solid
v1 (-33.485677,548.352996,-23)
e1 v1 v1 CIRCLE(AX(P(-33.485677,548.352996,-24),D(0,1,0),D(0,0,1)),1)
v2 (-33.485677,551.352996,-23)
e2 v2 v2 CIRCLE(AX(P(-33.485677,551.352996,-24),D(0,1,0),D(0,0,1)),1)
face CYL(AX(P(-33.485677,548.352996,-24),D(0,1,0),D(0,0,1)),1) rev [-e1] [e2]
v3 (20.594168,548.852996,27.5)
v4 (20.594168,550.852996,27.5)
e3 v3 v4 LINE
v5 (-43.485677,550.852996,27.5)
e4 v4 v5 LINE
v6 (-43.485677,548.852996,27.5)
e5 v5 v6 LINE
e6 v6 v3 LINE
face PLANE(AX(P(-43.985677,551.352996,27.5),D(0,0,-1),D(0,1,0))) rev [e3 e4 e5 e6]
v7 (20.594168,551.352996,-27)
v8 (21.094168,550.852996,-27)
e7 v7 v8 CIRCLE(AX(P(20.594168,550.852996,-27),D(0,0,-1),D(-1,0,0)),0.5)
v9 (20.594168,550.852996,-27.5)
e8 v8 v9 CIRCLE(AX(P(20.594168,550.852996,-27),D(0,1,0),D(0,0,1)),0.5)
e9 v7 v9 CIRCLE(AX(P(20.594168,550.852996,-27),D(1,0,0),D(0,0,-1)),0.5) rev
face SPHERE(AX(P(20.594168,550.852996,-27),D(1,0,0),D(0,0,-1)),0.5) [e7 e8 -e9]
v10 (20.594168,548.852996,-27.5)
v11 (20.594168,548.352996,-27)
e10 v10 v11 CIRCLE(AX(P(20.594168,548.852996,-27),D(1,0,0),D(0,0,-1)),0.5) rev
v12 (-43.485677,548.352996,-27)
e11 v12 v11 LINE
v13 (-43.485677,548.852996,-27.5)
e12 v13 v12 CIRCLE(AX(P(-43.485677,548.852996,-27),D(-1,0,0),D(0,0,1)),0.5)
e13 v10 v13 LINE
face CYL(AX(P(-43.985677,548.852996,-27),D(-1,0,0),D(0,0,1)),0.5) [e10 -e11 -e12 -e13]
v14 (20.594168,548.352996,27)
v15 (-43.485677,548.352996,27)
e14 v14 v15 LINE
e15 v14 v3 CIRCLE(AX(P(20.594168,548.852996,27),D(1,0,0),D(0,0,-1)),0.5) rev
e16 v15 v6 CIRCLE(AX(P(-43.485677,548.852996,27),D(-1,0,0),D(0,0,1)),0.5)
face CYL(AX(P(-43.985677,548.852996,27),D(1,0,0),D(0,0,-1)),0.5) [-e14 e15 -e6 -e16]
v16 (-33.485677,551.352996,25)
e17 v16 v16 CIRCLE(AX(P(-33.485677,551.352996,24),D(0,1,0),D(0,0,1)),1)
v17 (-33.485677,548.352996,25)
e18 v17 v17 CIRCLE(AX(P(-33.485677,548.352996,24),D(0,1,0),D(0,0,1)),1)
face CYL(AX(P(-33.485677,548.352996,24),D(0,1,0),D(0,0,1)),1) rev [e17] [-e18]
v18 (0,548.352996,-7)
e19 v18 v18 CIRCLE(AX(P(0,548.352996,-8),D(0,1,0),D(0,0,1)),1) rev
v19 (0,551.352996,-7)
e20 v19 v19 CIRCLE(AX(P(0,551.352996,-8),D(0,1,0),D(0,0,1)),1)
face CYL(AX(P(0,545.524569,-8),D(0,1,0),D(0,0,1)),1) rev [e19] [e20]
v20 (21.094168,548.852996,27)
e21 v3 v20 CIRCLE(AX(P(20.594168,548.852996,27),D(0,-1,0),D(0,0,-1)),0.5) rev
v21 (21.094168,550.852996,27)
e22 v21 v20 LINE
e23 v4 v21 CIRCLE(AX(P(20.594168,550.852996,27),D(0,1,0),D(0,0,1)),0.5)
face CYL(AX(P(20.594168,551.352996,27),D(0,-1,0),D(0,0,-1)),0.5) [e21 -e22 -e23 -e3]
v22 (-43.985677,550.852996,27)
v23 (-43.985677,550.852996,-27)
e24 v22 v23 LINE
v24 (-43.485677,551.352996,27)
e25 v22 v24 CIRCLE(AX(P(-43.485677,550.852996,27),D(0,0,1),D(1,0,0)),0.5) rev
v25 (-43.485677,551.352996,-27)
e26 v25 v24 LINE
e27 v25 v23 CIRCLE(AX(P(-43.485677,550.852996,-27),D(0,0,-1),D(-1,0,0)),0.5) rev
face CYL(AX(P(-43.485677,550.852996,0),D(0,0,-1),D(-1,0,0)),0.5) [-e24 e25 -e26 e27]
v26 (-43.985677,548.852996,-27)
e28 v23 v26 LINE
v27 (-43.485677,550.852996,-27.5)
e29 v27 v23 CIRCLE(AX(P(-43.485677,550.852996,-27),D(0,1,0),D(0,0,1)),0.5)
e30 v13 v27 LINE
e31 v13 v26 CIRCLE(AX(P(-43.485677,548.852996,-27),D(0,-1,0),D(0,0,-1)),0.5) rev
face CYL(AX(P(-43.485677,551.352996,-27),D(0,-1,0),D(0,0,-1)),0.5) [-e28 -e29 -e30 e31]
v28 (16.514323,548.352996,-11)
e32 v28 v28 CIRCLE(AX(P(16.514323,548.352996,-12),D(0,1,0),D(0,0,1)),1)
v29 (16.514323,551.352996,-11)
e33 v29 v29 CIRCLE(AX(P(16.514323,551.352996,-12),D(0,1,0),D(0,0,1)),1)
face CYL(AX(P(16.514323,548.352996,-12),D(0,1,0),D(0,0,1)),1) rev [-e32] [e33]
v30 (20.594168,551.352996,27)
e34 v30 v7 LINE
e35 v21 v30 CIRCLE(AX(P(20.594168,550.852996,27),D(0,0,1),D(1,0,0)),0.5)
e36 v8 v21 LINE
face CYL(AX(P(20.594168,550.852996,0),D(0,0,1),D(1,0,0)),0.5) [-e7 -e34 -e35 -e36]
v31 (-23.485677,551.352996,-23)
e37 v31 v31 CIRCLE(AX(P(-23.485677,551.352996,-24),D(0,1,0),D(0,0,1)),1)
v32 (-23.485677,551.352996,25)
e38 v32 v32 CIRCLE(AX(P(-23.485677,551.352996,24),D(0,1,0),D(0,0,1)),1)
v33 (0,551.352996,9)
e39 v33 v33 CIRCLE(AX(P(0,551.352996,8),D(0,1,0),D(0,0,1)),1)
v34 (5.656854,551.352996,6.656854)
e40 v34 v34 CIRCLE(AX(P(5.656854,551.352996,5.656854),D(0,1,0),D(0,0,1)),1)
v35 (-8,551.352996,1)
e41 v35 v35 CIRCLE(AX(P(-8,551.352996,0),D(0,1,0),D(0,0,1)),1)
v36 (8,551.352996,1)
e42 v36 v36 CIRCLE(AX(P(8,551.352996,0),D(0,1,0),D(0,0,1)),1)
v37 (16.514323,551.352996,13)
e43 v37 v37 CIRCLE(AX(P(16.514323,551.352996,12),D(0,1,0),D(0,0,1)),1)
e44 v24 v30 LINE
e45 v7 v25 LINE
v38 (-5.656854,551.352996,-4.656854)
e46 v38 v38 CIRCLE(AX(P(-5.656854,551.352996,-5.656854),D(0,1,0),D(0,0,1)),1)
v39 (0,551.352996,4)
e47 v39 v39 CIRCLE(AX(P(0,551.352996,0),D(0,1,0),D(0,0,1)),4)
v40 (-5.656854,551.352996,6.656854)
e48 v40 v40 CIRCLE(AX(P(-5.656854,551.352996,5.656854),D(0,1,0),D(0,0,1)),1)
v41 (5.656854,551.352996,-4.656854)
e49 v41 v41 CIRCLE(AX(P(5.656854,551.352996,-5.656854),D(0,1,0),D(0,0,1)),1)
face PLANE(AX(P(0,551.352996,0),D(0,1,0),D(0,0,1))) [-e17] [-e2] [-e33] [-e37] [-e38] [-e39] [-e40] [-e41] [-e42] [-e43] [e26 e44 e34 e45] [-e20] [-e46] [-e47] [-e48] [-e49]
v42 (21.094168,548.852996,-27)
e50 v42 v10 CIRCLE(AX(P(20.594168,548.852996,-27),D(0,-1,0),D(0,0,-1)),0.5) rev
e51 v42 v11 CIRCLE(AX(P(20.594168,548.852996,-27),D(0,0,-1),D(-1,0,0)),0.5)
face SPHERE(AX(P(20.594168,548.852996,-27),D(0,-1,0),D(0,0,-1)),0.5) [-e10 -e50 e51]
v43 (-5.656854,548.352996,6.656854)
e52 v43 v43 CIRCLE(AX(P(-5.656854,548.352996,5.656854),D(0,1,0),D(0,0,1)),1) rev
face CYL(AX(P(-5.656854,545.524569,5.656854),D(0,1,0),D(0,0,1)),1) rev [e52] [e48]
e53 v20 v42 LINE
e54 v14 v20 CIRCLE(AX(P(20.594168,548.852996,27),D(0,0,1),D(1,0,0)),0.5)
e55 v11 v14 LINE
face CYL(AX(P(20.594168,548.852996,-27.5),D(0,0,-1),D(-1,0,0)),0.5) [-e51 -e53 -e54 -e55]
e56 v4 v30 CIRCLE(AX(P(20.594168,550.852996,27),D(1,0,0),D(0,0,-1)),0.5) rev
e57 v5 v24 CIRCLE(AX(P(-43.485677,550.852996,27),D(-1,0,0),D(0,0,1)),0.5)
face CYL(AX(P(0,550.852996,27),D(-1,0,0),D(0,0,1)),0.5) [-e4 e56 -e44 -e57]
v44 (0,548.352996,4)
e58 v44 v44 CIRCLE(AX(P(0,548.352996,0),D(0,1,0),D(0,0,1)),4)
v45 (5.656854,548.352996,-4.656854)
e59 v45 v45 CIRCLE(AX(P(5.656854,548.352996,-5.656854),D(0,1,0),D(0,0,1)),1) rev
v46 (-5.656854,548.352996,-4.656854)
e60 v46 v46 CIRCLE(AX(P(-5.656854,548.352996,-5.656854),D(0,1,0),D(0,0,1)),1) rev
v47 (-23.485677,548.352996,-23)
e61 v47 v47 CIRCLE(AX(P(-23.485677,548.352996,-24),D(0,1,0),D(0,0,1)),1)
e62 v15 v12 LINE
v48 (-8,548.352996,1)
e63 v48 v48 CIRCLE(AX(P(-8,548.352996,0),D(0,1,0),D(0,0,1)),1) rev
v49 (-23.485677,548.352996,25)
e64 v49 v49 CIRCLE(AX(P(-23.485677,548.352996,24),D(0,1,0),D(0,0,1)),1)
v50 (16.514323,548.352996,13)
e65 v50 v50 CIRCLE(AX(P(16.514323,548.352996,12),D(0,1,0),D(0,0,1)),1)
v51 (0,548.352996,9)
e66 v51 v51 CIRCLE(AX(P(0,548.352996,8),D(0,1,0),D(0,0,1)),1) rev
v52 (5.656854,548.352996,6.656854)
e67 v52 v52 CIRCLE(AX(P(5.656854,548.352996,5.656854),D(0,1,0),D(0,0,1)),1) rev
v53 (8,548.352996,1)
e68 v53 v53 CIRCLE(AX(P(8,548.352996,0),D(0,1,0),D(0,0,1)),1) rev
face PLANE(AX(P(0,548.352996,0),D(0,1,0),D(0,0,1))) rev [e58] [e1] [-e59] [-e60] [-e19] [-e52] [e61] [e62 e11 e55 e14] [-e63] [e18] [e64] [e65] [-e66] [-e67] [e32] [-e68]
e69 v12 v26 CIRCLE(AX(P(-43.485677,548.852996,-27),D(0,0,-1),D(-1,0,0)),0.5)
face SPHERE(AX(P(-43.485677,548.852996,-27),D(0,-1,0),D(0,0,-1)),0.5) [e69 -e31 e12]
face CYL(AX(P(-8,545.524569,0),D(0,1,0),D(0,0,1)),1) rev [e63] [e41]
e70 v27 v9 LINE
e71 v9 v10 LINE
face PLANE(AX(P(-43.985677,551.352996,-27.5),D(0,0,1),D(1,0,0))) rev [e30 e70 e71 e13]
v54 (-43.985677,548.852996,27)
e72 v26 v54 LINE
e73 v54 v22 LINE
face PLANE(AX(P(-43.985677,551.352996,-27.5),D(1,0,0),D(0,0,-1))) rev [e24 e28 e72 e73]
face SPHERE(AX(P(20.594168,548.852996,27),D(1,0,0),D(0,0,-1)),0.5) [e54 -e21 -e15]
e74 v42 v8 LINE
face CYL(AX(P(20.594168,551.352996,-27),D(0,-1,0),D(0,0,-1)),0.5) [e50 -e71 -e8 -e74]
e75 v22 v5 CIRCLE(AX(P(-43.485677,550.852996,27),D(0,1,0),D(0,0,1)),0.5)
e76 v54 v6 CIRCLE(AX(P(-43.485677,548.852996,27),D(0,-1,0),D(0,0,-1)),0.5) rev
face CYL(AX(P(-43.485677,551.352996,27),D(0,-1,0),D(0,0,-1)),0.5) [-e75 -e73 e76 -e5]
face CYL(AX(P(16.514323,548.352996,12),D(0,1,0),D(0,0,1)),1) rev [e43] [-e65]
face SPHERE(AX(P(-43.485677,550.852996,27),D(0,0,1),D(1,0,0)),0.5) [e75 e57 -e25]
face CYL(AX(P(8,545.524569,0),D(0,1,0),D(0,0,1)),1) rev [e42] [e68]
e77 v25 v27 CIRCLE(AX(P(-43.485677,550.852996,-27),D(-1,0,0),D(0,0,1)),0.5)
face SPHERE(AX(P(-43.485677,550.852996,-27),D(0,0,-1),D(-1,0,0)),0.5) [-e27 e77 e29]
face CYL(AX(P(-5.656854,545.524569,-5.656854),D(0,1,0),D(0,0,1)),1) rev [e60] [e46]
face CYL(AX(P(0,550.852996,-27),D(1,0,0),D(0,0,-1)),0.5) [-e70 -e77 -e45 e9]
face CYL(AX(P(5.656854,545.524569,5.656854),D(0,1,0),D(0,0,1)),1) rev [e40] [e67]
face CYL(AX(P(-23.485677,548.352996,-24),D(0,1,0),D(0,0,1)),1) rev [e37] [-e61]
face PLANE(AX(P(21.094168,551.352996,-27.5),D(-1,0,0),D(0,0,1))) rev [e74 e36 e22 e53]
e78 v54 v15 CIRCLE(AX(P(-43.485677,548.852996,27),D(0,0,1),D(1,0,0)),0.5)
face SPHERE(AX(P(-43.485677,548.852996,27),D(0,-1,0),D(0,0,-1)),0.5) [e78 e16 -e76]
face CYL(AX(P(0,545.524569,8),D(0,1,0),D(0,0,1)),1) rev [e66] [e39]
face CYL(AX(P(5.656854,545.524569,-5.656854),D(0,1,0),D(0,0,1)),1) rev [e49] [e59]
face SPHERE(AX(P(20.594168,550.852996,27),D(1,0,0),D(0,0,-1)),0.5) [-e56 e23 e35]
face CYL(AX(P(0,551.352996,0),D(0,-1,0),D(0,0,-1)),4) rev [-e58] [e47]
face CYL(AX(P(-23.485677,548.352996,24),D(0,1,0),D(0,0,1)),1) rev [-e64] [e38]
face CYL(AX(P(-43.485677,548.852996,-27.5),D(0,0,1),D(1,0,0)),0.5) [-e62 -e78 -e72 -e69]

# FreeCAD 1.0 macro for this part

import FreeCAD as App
import Part
import Sketcher
from FreeCAD import Vector


def edges_at(feature, points):
    """Names of the edges that pass closest to the given points."""
    edges = feature.Shape.Edges
    near = lambda p: min(range(len(edges)), key=lambda i: edges[i].distToShape(Part.Vertex(*p))[0])
    return sorted({f"Edge{near(p) + 1}" for p in points})


def add_polygon(sketch, points):
    """Adds a closed chain of lines whose ends are joined by coincident constraints."""
    first, n = sketch.GeometryCount, len(points)
    for a, b in zip(points, points[1:] + points[:1]):
        sketch.addGeometry(Part.LineSegment(App.Vector(*a, 0), App.Vector(*b, 0)), False)
    for i in range(n):
        sketch.addConstraint(Sketcher.Constraint("Coincident", first + i, 2, first + (i + 1) % n, 1))

doc = App.newDocument("Part")
body = doc.addObject("PartDesign::Body", "Body")

# Sketch on XZ plane
sketch1 = body.newObject("Sketcher::SketchObject", "Sketch")
sketch1.AttachmentSupport = (doc.getObject("XZ_Plane"), [""])
sketch1.MapMode = "FlatFace"
sketch1.AttachmentOffset = App.Placement(Vector(0, 0, -548.352996), App.Rotation())
add_polygon(sketch1, [(-44, -27.5), (-44, 27.5), (21.1, 27.5), (21.1, -27.5)])  # lines 0-3
sketch1.addGeometry(Part.Circle(Vector(0, 0, 0), Vector(0, 0, 1), 4), False)  # 4
sketch1.addConstraint([
    Sketcher.Constraint("Vertical", 0),
    Sketcher.Constraint("Horizontal", 1),
    Sketcher.Constraint("Vertical", 2),
    Sketcher.Constraint("Horizontal", 3),
    Sketcher.Constraint("Coincident", 4, 3, -1, 1),
    Sketcher.Constraint("Diameter", 4, 8.0),
    Sketcher.Constraint("DistanceY", 0, 1, 0, 2, 55.0),
    Sketcher.Constraint("DistanceY", -1, 1, 0, 2, 27.5),
    Sketcher.Constraint("DistanceX", 1, 1, 1, 2, 65.079846),
    Sketcher.Constraint("DistanceX", -1, 1, 1, 2, 21.094168),
])
pad1 = body.newObject("PartDesign::Pad", "Pad")
pad1.Profile = sketch1
pad1.Length = 3
pad1.Reversed = True

# Sketch on XZ plane
sketch2 = body.newObject("Sketcher::SketchObject", "Sketch001")
sketch2.AttachmentSupport = (doc.getObject("XZ_Plane"), [""])
sketch2.MapMode = "FlatFace"
sketch2.AttachmentOffset = App.Placement(Vector(0, 0, -551.352996), App.Rotation())
sketch2.addGeometry([
    Part.Circle(Vector(0, -8, 0), Vector(0, 0, 1), 1),  # 0
    Part.Circle(Vector(5.7, -5.7, 0), Vector(0, 0, 1), 1),  # 1
    Part.Circle(Vector(8, 0, 0), Vector(0, 0, 1), 1),  # 2
    Part.Circle(Vector(5.7, 5.7, 0), Vector(0, 0, 1), 1),  # 3
    Part.Circle(Vector(0, 8, 0), Vector(0, 0, 1), 1),  # 4
    Part.Circle(Vector(-5.7, 5.7, 0), Vector(0, 0, 1), 1),  # 5
    Part.Circle(Vector(-8, 0, 0), Vector(0, 0, 1), 1),  # 6
    Part.Circle(Vector(-5.7, -5.7, 0), Vector(0, 0, 1), 1),  # 7
], False)
sketch2.addConstraint([
    Sketcher.Constraint("Equal", 0, 1),
    Sketcher.Constraint("Equal", 1, 2),
    Sketcher.Constraint("Equal", 2, 3),
    Sketcher.Constraint("Equal", 3, 4),
    Sketcher.Constraint("Equal", 4, 5),
    Sketcher.Constraint("Equal", 5, 6),
    Sketcher.Constraint("Equal", 6, 7),
    Sketcher.Constraint("Symmetric", 0, 3, 4, 3, -1, 1),
    Sketcher.Constraint("Symmetric", 1, 3, 5, 3, -1, 1),
    Sketcher.Constraint("Symmetric", 2, 3, 6, 3, -1, 1),
    Sketcher.Constraint("Symmetric", 3, 3, 7, 3, -1, 1),
    Sketcher.Constraint("Symmetric", 3, 3, 5, 3, -2),
    Sketcher.Constraint("PointOnObject", 0, 3, -2),
    Sketcher.Constraint("PointOnObject", 2, 3, -1),
    Sketcher.Constraint("Diameter", 0, 2.0),
    Sketcher.Constraint("DistanceY", 0, 3, -1, 1, 8.0),
    Sketcher.Constraint("DistanceX", -1, 1, 2, 3, 8.0),
    Sketcher.Constraint("DistanceY", 1, 3, 3, 3, 11.313708),
    Sketcher.Constraint("DistanceX", 5, 3, 3, 3, 11.313708),
])
pocket1 = body.newObject("PartDesign::Pocket", "Pocket")
pocket1.Profile = sketch2
pocket1.Length = 3
pocket1.Reversed = True
doc.recompute()

fillet = body.newObject("PartDesign::Fillet", "Fillet")
fillet.Base = (pocket1, edges_at(pocket1, [
    (21.094, 551.353, 0),
    (-11.446, 551.353, -27.5),
    (-43.986, 551.353, 0),
    (-11.446, 548.353, -27.5),
    (21.094, 548.353, 0),
    (-11.446, 548.353, 27.5),
    (-43.986, 548.353, 0),
    (-43.986, 549.853, -27.5),
    (21.094, 549.853, -27.5),
    (21.094, 549.853, 27.5),
    (-43.986, 549.853, 27.5),
    (-11.446, 551.353, 27.5),
]))
fillet.Radius = 0.5

# Sketch on XZ plane
sketch3 = body.newObject("Sketcher::SketchObject", "Sketch002")
sketch3.AttachmentSupport = (doc.getObject("XZ_Plane"), [""])
sketch3.MapMode = "FlatFace"
sketch3.AttachmentOffset = App.Placement(Vector(0, 0, -551.352996), App.Rotation())
sketch3.addGeometry([
    Part.Circle(Vector(-33.5, 24, 0), Vector(0, 0, 1), 1),  # 0
    Part.Circle(Vector(-23.5, 24, 0), Vector(0, 0, 1), 1),  # 1
    Part.Circle(Vector(16.5, 12, 0), Vector(0, 0, 1), 1),  # 2
    Part.Circle(Vector(16.5, -12, 0), Vector(0, 0, 1), 1),  # 3
    Part.Circle(Vector(-23.5, -24, 0), Vector(0, 0, 1), 1),  # 4
    Part.Circle(Vector(-33.5, -24, 0), Vector(0, 0, 1), 1),  # 5
], False)
sketch3.addConstraint([
    Sketcher.Constraint("Equal", 0, 1),
    Sketcher.Constraint("Equal", 1, 2),
    Sketcher.Constraint("Equal", 2, 3),
    Sketcher.Constraint("Equal", 3, 4),
    Sketcher.Constraint("Equal", 4, 5),
    Sketcher.Constraint("Symmetric", 2, 3, 3, 3, -1),
    Sketcher.Constraint("Symmetric", 1, 3, 4, 3, -1),
    Sketcher.Constraint("Symmetric", 0, 3, 5, 3, -1),
    Sketcher.Constraint("Horizontal", 0, 3, 1, 3),
    Sketcher.Constraint("Diameter", 0, 2.0),
    Sketcher.Constraint("DistanceY", -1, 1, 0, 3, 24.0),
    Sketcher.Constraint("DistanceY", -1, 1, 2, 3, 12.0),
    Sketcher.Constraint("DistanceX", 0, 3, 1, 3, 10.0),
    Sketcher.Constraint("DistanceX", 1, 3, 2, 3, 40.0),
    Sketcher.Constraint("DistanceX", 0, 3, -1, 1, 33.485677),
])
pocket2 = body.newObject("PartDesign::Pocket", "Pocket001")
pocket2.Profile = sketch3
pocket2.Type = "ThroughAll"
pocket2.Reversed = True

doc.recompute()
